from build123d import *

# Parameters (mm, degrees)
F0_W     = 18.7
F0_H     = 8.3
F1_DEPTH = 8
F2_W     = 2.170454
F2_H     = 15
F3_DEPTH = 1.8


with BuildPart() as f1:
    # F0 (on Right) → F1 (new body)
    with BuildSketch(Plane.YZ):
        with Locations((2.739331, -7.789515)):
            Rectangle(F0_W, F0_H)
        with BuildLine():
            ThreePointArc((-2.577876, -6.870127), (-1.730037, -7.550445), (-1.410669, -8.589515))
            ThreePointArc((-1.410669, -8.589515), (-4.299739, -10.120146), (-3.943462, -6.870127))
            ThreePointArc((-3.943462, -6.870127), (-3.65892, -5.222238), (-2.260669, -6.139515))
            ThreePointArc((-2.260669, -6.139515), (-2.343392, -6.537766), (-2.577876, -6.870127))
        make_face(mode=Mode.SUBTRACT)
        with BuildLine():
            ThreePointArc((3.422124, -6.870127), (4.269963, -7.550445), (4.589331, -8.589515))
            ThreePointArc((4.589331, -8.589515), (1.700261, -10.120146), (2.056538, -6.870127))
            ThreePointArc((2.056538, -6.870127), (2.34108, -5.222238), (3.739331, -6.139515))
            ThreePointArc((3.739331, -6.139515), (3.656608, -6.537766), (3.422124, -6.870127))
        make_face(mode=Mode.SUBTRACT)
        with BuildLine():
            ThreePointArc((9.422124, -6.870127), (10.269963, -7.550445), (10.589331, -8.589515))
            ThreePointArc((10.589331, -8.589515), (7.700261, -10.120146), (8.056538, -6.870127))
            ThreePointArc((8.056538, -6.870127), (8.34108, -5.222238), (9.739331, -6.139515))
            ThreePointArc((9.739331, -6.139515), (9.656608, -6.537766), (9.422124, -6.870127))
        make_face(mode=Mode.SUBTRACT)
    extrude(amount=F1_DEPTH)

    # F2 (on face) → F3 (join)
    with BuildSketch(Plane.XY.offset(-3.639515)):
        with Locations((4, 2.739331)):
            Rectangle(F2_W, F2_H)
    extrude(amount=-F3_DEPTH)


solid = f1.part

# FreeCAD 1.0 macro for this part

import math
import FreeCAD as App
import Part
import Sketcher
Q = App.Units.Quantity


def add_polygon(sketch, points):
    """Adds a closed chain of lines whose ends are joined by coincident constraints."""
    first, n = sketch.GeometryCount, len(points)
    for a, b in zip(points, points[1:] + points[:1]):
        sketch.addGeometry(Part.LineSegment(App.Vector(*a, 0), App.Vector(*b, 0)), False)
    for i in range(n):
        sketch.addConstraint(Sketcher.Constraint("Coincident", first + i, 2, first + (i + 1) % n, 1))

doc = App.newDocument("Part")
body = doc.addObject("PartDesign::Body", "Body")

# Sketch on YZ plane
sketch1 = body.newObject("Sketcher::SketchObject", "Sketch")
sketch1.AttachmentSupport = (doc.getObject("YZ_Plane"), [""])
sketch1.MapMode = "FlatFace"
add_polygon(sketch1, [(-6.6, -3.6), (-6.6, -11.9), (12.1, -11.9), (12.1, -3.6)])  # lines 0-3
sketch1.addGeometry(Part.ArcOfCircle(Part.Circle(App.Vector(-3.3, -6.1, 0), App.Vector(0, 0, 1), 1), math.radians(-47), math.radians(0)), False)  # 4
sketch1.addGeometry(Part.ArcOfCircle(Part.Circle(App.Vector(-3.3, -8.6, 0), App.Vector(0, 0, 1), 1.9), math.radians(0), math.radians(68)), False)  # 5
sketch1.addGeometry(Part.ArcOfCircle(Part.Circle(App.Vector(-3.3, -8.6, 0), App.Vector(0, 0, 1), 1.8), math.radians(112), math.radians(360)), False)  # 6
sketch1.addGeometry(Part.ArcOfCircle(Part.Circle(App.Vector(-3.3, -6.1, 0), App.Vector(0, 0, 1), 1), math.radians(0), math.radians(227)), False)  # 7
sketch1.addGeometry(Part.ArcOfCircle(Part.Circle(App.Vector(2.7, -6.1, 0), App.Vector(0, 0, 1), 1), math.radians(-47), math.radians(0)), False)  # 8
sketch1.addGeometry(Part.ArcOfCircle(Part.Circle(App.Vector(2.7, -8.6, 0), App.Vector(0, 0, 1), 1.9), math.radians(0), math.radians(68)), False)  # 9
sketch1.addGeometry(Part.ArcOfCircle(Part.Circle(App.Vector(2.7, -8.6, 0), App.Vector(0, 0, 1), 1.8), math.radians(112), math.radians(360)), False)  # 10
sketch1.addGeometry(Part.ArcOfCircle(Part.Circle(App.Vector(2.7, -6.1, 0), App.Vector(0, 0, 1), 1), math.radians(0), math.radians(227)), False)  # 11
sketch1.addGeometry(Part.ArcOfCircle(Part.Circle(App.Vector(8.7, -6.1, 0), App.Vector(0, 0, 1), 1), math.radians(-47), math.radians(0)), False)  # 12
sketch1.addGeometry(Part.ArcOfCircle(Part.Circle(App.Vector(8.7, -8.6, 0), App.Vector(0, 0, 1), 1.9), math.radians(0), math.radians(68)), False)  # 13
sketch1.addGeometry(Part.ArcOfCircle(Part.Circle(App.Vector(8.7, -8.6, 0), App.Vector(0, 0, 1), 1.8), math.radians(112), math.radians(360)), False)  # 14
sketch1.addGeometry(Part.ArcOfCircle(Part.Circle(App.Vector(8.7, -6.1, 0), App.Vector(0, 0, 1), 1), math.radians(0), math.radians(227)), False)  # 15
sketch1.addConstraint([
    Sketcher.Constraint("Coincident", 4, 1, 5, 2),
    Sketcher.Constraint("Tangent", 5, 1, 6, 2),
    Sketcher.Constraint("Coincident", 6, 1, 7, 2),
    Sketcher.Constraint("Coincident", 7, 1, 4, 2),
    Sketcher.Constraint("Coincident", 8, 1, 9, 2),
    Sketcher.Constraint("Tangent", 9, 1, 10, 2),
    Sketcher.Constraint("Coincident", 10, 1, 11, 2),
    Sketcher.Constraint("Coincident", 11, 1, 8, 2),
    Sketcher.Constraint("Coincident", 12, 1, 13, 2),
    Sketcher.Constraint("Tangent", 13, 1, 14, 2),
    Sketcher.Constraint("Coincident", 14, 1, 15, 2),
    Sketcher.Constraint("Coincident", 15, 1, 12, 2),
    Sketcher.Constraint("Vertical", 0),
    Sketcher.Constraint("Horizontal", 1),
    Sketcher.Constraint("Vertical", 2),
    Sketcher.Constraint("Horizontal", 3),
    Sketcher.Constraint("Coincident", 7, 3, 4, 3),
    Sketcher.Constraint("Coincident", 11, 3, 8, 3),
    Sketcher.Constraint("Coincident", 15, 3, 12, 3),
    Sketcher.Constraint("Equal", 5, 6),
    Sketcher.Constraint("Equal", 4, 8),
    Sketcher.Constraint("Equal", 6, 9),
    Sketcher.Constraint("Equal", 9, 10),
    Sketcher.Constraint("Equal", 8, 12),
    Sketcher.Constraint("Equal", 10, 13),
    Sketcher.Constraint("Equal", 13, 14),
    Sketcher.Constraint("Horizontal", 4, 3, 8, 3),
    Sketcher.Constraint("Horizontal", 6, 3, 9, 3),
    Sketcher.Constraint("Horizontal", 8, 3, 12, 3),
    Sketcher.Constraint("Horizontal", 10, 3, 13, 3),
    Sketcher.Constraint("Horizontal", 14, 3, 5, 1),
    Sketcher.Constraint("Horizontal", 4, 1, 6, 1),
    Sketcher.Constraint("Horizontal", 15, 3, 7, 1),
    Sketcher.Constraint("Horizontal", 6, 1, 8, 1),
    Sketcher.Constraint("Horizontal", 5, 1, 9, 1),
    Sketcher.Constraint("Horizontal", 7, 1, 11, 1),
    Sketcher.Constraint("Horizontal", 10, 1, 12, 1),
    Sketcher.Constraint("Horizontal", 9, 1, 13, 1),
    Sketcher.Constraint("Horizontal", 11, 1, 15, 1),
    Sketcher.Constraint("Radius", 7, Q("1 mm")),
    Sketcher.Constraint("Radius", 5, Q("1.85 mm")),
    Sketcher.Constraint("DistanceX", 1, 1, 1, 2, Q("18.7 mm")),
    Sketcher.Constraint("DistanceY", 0, 2, 0, 1, Q("8.3 mm")),
    Sketcher.Constraint("DistanceX", 4, 3, 8, 3, Q("6 mm")),
    Sketcher.Constraint("DistanceX", 8, 3, 12, 3, Q("6 mm")),
    Sketcher.Constraint("DistanceY", 0, 2, 7, 3, Q("5.8 mm")),
    Sketcher.Constraint("DistanceY", 6, 3, 7, 3, Q("2.45 mm")),
    Sketcher.Constraint("DistanceX", 0, 2, 5, 3, Q("3.35 mm")),
    Sketcher.Constraint("DistanceX", 5, 3, -1, 1, Q("3.260669 mm")),
    Sketcher.Constraint("DistanceY", 4, 3, -1, 1, Q("6.139517 mm")),
])
pad1 = body.newObject("PartDesign::Pad", "Pad")
pad1.Profile = sketch1
pad1.Length = 8

# Sketch on XY plane
sketch2 = body.newObject("Sketcher::SketchObject", "Sketch001")
sketch2.AttachmentSupport = (doc.getObject("XY_Plane"), [""])
sketch2.MapMode = "FlatFace"
sketch2.AttachmentOffset = App.Placement(App.Vector(0, 0, -3.639515), App.Rotation())
add_polygon(sketch2, [(2.9, 10.2), (2.9, -4.8), (5.1, -4.8), (5.1, 10.2)])  # lines 0-3
sketch2.addConstraint([
    Sketcher.Constraint("Vertical", 0),
    Sketcher.Constraint("Horizontal", 1),
    Sketcher.Constraint("Vertical", 2),
    Sketcher.Constraint("Horizontal", 3),
    Sketcher.Constraint("DistanceY", 0, 2, 0, 1, Q("15 mm")),
    Sketcher.Constraint("DistanceX", 1, 1, 1, 2, Q("2.170454 mm")),
    Sketcher.Constraint("DistanceY", 0, 2, -1, 1, Q("4.760669 mm")),
    Sketcher.Constraint("DistanceX", -1, 1, 0, 2, Q("2.914773 mm")),
])
pad2 = body.newObject("PartDesign::Pad", "Pad001")
pad2.Profile = sketch2
pad2.Length = 1.8
pad2.Reversed = True

doc.recompute()
